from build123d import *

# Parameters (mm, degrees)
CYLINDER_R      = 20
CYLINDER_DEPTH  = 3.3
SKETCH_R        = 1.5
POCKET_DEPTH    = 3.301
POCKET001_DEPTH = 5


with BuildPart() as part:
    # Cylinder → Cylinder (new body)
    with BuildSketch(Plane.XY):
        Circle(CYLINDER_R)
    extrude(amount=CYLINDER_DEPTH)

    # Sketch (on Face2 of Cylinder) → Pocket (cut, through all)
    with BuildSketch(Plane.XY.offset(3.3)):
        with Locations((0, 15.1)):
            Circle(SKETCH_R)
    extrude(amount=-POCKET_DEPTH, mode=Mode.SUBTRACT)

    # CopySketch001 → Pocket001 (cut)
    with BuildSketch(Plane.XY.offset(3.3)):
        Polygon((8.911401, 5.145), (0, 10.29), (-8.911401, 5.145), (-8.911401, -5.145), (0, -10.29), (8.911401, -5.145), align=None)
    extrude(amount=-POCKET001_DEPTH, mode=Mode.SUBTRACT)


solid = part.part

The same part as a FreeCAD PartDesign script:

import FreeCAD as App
import Part
import Sketcher

V = App.Vector
Q = App.Units.Quantity


def add_polygon(sketch, points):
    """Adds a closed chain of lines whose ends are joined by coincident constraints."""
    first, n = sketch.GeometryCount, len(points)
    for a, b in zip(points, points[1:] + points[:1]):
        sketch.addGeometry(Part.LineSegment(App.Vector(*a, 0), App.Vector(*b, 0)), False)
    for i in range(n):
        sketch.addConstraint(Sketcher.Constraint("Coincident", first + i, 2, first + (i + 1) % n, 1))

doc = App.newDocument("Part")
params = doc.addObject("Spreadsheet::Sheet", "Params")
for row, (alias, value) in enumerate([
    ("sketch1_diameter", "40 mm"),
    ("pad1_length", "3.3 mm"),
    ("sketch2_diameter", "3 mm"),
    ("sketch3_height", "10.29 mm"),
    ("sketch3_length", "10.29 mm"),
    ("pocket2_length", "5 mm"),
], start=1):
    params.set(f"A{row}", alias)
    params.set(f"B{row}", "=" + value)
    params.setAlias(f"B{row}", alias)

body = doc.addObject("PartDesign::Body", "Body")

sketch1 = doc.addObject("Sketcher::SketchObject", "Sketch")
body.addObject(sketch1)
sketch1.AttachmentSupport = (doc.XY_Plane, [""])
sketch1.MapMode = "FlatFace"
sketch1.addGeometry(Part.Circle(V(0, 0, 0), V(0, 0, 1), 20), False)
sketch1.addConstraint([
    Sketcher.Constraint("Coincident", 0, 3, -1, 1),
    Sketcher.Constraint("Diameter", 0, Q("40 mm")),
])
sketch1.setExpression("Constraints[1]", "Params.sketch1_diameter")
pad1 = doc.addObject("PartDesign::Pad", "Pad")
body.addObject(pad1)
pad1.Profile = sketch1
pad1.setExpression("Length", "Params.pad1_length")

sketch2 = doc.addObject("Sketcher::SketchObject", "Sketch001")
body.addObject(sketch2)
sketch2.AttachmentSupport = (doc.XY_Plane, [""])
sketch2.MapMode = "FlatFace"
sketch2.AttachmentOffset = App.Placement(V(0, 0, 3.3), App.Rotation())
sketch2.addGeometry(Part.Circle(V(0, 15.1, 0), V(0, 0, 1), 1.5), False)
sketch2.addConstraint([
    Sketcher.Constraint("PointOnObject", 0, 3, -2),
    Sketcher.Constraint("Diameter", 0, Q("3 mm")),
    Sketcher.Constraint("DistanceY", -1, 1, 0, 3, Q("15.1 mm")),
])
sketch2.setExpression("Constraints[1]", "Params.sketch2_diameter")
pocket1 = doc.addObject("PartDesign::Pocket", "Pocket")
body.addObject(pocket1)
pocket1.Profile = sketch2
pocket1.Type = "ThroughAll"

sketch3 = doc.addObject("Sketcher::SketchObject", "Sketch002")
body.addObject(sketch3)
sketch3.AttachmentSupport = (doc.XY_Plane, [""])
sketch3.MapMode = "FlatFace"
sketch3.AttachmentOffset = App.Placement(V(0, 0, 3.3), App.Rotation())
add_polygon(sketch3, [(9, 5), (0, 10), (-9, 5), (-9, -5), (0, -10), (9, -5)])
sketch3.addConstraint([
    Sketcher.Constraint("Vertical", 2),
    Sketcher.Constraint("Vertical", 5),
    Sketcher.Constraint("Symmetric", 0, 2, 3, 2, -1, 1),
    Sketcher.Constraint("Symmetric", 1, 2, 4, 2, -1, 1),
    Sketcher.Constraint("PointOnObject", 0, 2, -2),
    Sketcher.Constraint("Parallel", 0, 3),
    Sketcher.Constraint("Horizontal", 2, 2, 4, 2),
    Sketcher.Constraint("Angle", 0, Q("149.999999 deg")),
    Sketcher.Constraint("DistanceY", 2, 2, 2, 1, Q("10.29 mm")),
    Sketcher.Constraint("Distance", 0, Q("10.29 mm")),
])
sketch3.setExpression("Constraints[14]", "Params.sketch3_height")
sketch3.setExpression("Constraints[15]", "Params.sketch3_length")
pocket2 = doc.addObject("PartDesign::Pocket", "Pocket001")
body.addObject(pocket2)
pocket2.Profile = sketch3
pocket2.setExpression("Length", "Params.pocket2_length")

doc.recompute()
